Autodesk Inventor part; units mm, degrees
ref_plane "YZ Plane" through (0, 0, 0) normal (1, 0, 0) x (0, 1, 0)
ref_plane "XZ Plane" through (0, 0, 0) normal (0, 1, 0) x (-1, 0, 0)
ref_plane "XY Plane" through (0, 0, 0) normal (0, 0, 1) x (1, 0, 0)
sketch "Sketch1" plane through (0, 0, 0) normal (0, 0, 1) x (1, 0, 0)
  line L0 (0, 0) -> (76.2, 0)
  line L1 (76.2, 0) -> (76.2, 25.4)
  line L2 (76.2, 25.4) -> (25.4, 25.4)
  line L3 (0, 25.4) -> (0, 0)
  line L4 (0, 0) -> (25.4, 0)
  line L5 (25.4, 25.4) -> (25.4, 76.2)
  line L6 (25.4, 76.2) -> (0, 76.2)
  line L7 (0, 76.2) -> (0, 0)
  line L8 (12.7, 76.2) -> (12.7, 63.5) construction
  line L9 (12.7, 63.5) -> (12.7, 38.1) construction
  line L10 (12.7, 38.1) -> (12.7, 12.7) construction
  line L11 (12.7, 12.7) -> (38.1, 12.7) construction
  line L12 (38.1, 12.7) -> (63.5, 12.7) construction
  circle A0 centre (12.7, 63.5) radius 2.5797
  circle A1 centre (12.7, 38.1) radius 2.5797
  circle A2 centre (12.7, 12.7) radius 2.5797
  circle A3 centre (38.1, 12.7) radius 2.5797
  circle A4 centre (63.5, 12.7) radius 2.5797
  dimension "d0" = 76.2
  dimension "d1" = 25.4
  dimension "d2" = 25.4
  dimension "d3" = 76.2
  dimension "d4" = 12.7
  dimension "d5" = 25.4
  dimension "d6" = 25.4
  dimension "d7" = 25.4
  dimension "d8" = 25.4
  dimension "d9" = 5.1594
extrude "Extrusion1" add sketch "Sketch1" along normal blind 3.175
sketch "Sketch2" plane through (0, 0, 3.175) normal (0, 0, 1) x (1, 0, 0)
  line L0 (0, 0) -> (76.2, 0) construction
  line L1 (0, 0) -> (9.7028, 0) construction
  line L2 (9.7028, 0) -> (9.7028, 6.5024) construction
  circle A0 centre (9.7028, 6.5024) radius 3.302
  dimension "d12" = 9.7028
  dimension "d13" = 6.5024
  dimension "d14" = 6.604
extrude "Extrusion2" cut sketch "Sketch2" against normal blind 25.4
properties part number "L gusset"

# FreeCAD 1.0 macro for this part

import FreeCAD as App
import Part
import Sketcher

V = App.Vector
Q = App.Units.Quantity


def add_polygon(sketch, points):
    """Adds a closed chain of lines whose ends are joined by coincident constraints."""
    first, n = sketch.GeometryCount, len(points)
    for a, b in zip(points, points[1:] + points[:1]):
        sketch.addGeometry(Part.LineSegment(App.Vector(*a, 0), App.Vector(*b, 0)), False)
    for i in range(n):
        sketch.addConstraint(Sketcher.Constraint("Coincident", first + i, 2, first + (i + 1) % n, 1))

doc = App.newDocument("Part")
body = doc.addObject("PartDesign::Body", "Body")

# Sketch on XY plane
sketch1 = body.newObject("Sketcher::SketchObject", "Sketch")
sketch1.AttachmentSupport = (doc.getObject("XY_Plane"), [""])
sketch1.MapMode = "FlatFace"
add_polygon(sketch1, [(0, 76.2), (0, 0), (76.2, 0), (76.2, 25.4), (25.4, 25.4), (25.4, 76.2)])  # lines 0-5
sketch1.addGeometry(Part.Circle(V(12.7, 12.7, 0), V(0, 0, 1), 2.6), False)  # 6
sketch1.addGeometry(Part.Circle(V(38.1, 12.7, 0), V(0, 0, 1), 2.6), False)  # 7
sketch1.addGeometry(Part.Circle(V(63.5, 12.7, 0), V(0, 0, 1), 2.6), False)  # 8
sketch1.addGeometry(Part.Circle(V(12.7, 38.1, 0), V(0, 0, 1), 2.6), False)  # 9
sketch1.addGeometry(Part.Circle(V(12.7, 63.5, 0), V(0, 0, 1), 2.6), False)  # 10
sketch1.addConstraint([
    Sketcher.Constraint("Vertical", 0),
    Sketcher.Constraint("Horizontal", 1),
    Sketcher.Constraint("Vertical", 2),
    Sketcher.Constraint("Horizontal", 3),
    Sketcher.Constraint("Vertical", 4),
    Sketcher.Constraint("Horizontal", 5),
    Sketcher.Constraint("Coincident", 0, 2, -1, 1),
    Sketcher.Constraint("Equal", 6, 7),
    Sketcher.Constraint("Equal", 7, 8),
    Sketcher.Constraint("Equal", 8, 9),
    Sketcher.Constraint("Equal", 9, 10),
    Sketcher.Constraint("Horizontal", 6, 3, 7, 3),
    Sketcher.Constraint("Horizontal", 7, 3, 8, 3),
    Sketcher.Constraint("Vertical", 6, 3, 9, 3),
    Sketcher.Constraint("Vertical", 9, 3, 10, 3),
    Sketcher.Constraint("Equal", 1, 0),
    Sketcher.Constraint("Equal", 5, 2),
    Sketcher.Constraint("DistanceX", 1, 1, 1, 2, Q("3 in")),
    Sketcher.Constraint("DistanceX", 5, 2, 5, 1, Q("1 in")),
    Sketcher.Constraint("Diameter", 6, Q("0.203126 in")),
    Sketcher.Constraint("DistanceX", 6, 3, 7, 3, Q("1 in")),
    Sketcher.Constraint("DistanceX", 7, 3, 8, 3, Q("1 in")),
    Sketcher.Constraint("DistanceY", 6, 3, 9, 3, Q("1 in")),
    Sketcher.Constraint("DistanceY", 9, 3, 10, 3, Q("1 in")),
    Sketcher.Constraint("DistanceX", -1, 1, 6, 3, Q("0.5 in")),
    Sketcher.Constraint("DistanceY", -1, 1, 6, 3, Q("0.5 in")),
])
pad1 = body.newObject("PartDesign::Pad", "Pad")
pad1.Profile = sketch1
pad1.Length = Q("0.125 in")

# Sketch on XY plane
sketch2 = body.newObject("Sketcher::SketchObject", "Sketch001")
sketch2.AttachmentSupport = (doc.getObject("XY_Plane"), [""])
sketch2.MapMode = "FlatFace"
sketch2.AttachmentOffset = App.Placement(V(0, 0, 0.125 * 25.4), App.Rotation())
sketch2.addGeometry(Part.Circle(V(9.7, 6.5, 0), V(0, 0, 1), 3.3), False)
sketch2.addConstraint([
    Sketcher.Constraint("Diameter", 0, Q("0.26 in")),
    Sketcher.Constraint("DistanceX", -1, 1, 0, 3, Q("0.382 in")),
    Sketcher.Constraint("DistanceY", -1, 1, 0, 3, Q("0.256 in")),
])
pocket1 = body.newObject("PartDesign::Pocket", "Pocket")
pocket1.Profile = sketch2
pocket1.Length = Q("1 in")

doc.recompute()
